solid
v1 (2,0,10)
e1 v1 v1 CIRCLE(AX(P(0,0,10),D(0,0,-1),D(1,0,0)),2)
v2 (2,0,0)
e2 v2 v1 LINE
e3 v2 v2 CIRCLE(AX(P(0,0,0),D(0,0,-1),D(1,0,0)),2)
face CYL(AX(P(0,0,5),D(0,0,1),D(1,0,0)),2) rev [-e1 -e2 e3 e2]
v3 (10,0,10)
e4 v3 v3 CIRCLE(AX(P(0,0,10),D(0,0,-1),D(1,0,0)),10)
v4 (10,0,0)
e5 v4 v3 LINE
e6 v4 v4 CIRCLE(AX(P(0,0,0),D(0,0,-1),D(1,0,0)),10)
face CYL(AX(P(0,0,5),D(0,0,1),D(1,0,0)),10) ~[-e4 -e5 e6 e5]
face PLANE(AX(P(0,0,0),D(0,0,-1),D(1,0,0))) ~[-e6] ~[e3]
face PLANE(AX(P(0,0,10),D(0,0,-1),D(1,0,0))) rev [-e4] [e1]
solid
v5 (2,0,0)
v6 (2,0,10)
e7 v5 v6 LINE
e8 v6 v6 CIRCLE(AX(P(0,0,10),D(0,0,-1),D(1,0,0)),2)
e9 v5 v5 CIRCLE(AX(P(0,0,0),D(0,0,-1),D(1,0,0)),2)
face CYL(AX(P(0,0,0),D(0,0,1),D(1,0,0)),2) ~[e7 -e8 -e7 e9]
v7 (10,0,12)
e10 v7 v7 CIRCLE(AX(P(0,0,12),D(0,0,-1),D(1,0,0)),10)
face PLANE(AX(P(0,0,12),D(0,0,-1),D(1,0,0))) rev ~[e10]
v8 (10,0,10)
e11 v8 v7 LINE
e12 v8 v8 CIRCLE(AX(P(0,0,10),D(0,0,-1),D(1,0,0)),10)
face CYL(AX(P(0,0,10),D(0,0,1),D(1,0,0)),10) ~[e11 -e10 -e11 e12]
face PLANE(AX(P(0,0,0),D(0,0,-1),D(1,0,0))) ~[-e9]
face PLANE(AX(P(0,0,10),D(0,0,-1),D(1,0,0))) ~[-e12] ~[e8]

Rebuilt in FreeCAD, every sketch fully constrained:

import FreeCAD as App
import Part
import Sketcher

V = App.Vector
Q = App.Units.Quantity


def add_polygon(sketch, points):
    """Adds a closed chain of lines whose ends are joined by coincident constraints."""
    first, n = sketch.GeometryCount, len(points)
    for a, b in zip(points, points[1:] + points[:1]):
        sketch.addGeometry(Part.LineSegment(App.Vector(*a, 0), App.Vector(*b, 0)), False)
    for i in range(n):
        sketch.addConstraint(Sketcher.Constraint("Coincident", first + i, 2, first + (i + 1) % n, 1))

doc = App.newDocument("Part")
body = doc.addObject("PartDesign::Body", "Body")

sketch1 = body.newObject("Sketcher::SketchObject", "Sketch")
sketch1.AttachmentSupport = (doc.getObject("XZ_Plane"), [""])
sketch1.MapMode = "FlatFace"
add_polygon(sketch1, [(0, 12), (0, 0), (2, 0), (2, 10), (10, 10), (10, 12)])
sketch1.addConstraint([
    Sketcher.Constraint("Vertical", 0),
    Sketcher.Constraint("Horizontal", 1),
    Sketcher.Constraint("Vertical", 2),
    Sketcher.Constraint("Horizontal", 3),
    Sketcher.Constraint("Vertical", 4),
    Sketcher.Constraint("Horizontal", 5),
    Sketcher.Constraint("Coincident", 0, 2, -1, 1),
    Sketcher.Constraint("Equal", 5, 2),
    Sketcher.Constraint("Equal", 1, 4),
    Sketcher.Constraint("DistanceX", 1, 1, 1, 2, Q("2 mm")),
    Sketcher.Constraint("DistanceX", 3, 1, 3, 2, Q("8 mm")),
])
revolution = body.newObject("PartDesign::Revolution", "Revolution")
revolution.Profile = sketch1
revolution.ReferenceAxis = (sketch1, ["V_Axis"])
revolution.Angle = 360
body2 = doc.addObject("PartDesign::Body", "Body001")

sketch2 = body2.newObject("Sketcher::SketchObject", "Sketch001")
sketch2.AttachmentSupport = (doc.getObject("XZ_Plane001"), [""])
sketch2.MapMode = "FlatFace"
add_polygon(sketch2, [(2, 10), (2, 0), (10, 0), (10, 10)])
sketch2.addConstraint([
    Sketcher.Constraint("Vertical", 0),
    Sketcher.Constraint("Horizontal", 1),
    Sketcher.Constraint("Vertical", 2),
    Sketcher.Constraint("Horizontal", 3),
    Sketcher.Constraint("PointOnObject", 0, 2, -1),
    Sketcher.Constraint("DistanceX", 1, 1, 1, 2, Q("8 mm")),
    Sketcher.Constraint("DistanceY", 0, 2, 0, 1, Q("10 mm")),
    Sketcher.Constraint("DistanceX", -1, 1, 0, 2, Q("2 mm")),
])
revolution2 = body2.newObject("PartDesign::Revolution", "Revolution001")
revolution2.Profile = sketch2
revolution2.ReferenceAxis = (sketch2, ["V_Axis"])
revolution2.Angle = 360

doc.recompute()
